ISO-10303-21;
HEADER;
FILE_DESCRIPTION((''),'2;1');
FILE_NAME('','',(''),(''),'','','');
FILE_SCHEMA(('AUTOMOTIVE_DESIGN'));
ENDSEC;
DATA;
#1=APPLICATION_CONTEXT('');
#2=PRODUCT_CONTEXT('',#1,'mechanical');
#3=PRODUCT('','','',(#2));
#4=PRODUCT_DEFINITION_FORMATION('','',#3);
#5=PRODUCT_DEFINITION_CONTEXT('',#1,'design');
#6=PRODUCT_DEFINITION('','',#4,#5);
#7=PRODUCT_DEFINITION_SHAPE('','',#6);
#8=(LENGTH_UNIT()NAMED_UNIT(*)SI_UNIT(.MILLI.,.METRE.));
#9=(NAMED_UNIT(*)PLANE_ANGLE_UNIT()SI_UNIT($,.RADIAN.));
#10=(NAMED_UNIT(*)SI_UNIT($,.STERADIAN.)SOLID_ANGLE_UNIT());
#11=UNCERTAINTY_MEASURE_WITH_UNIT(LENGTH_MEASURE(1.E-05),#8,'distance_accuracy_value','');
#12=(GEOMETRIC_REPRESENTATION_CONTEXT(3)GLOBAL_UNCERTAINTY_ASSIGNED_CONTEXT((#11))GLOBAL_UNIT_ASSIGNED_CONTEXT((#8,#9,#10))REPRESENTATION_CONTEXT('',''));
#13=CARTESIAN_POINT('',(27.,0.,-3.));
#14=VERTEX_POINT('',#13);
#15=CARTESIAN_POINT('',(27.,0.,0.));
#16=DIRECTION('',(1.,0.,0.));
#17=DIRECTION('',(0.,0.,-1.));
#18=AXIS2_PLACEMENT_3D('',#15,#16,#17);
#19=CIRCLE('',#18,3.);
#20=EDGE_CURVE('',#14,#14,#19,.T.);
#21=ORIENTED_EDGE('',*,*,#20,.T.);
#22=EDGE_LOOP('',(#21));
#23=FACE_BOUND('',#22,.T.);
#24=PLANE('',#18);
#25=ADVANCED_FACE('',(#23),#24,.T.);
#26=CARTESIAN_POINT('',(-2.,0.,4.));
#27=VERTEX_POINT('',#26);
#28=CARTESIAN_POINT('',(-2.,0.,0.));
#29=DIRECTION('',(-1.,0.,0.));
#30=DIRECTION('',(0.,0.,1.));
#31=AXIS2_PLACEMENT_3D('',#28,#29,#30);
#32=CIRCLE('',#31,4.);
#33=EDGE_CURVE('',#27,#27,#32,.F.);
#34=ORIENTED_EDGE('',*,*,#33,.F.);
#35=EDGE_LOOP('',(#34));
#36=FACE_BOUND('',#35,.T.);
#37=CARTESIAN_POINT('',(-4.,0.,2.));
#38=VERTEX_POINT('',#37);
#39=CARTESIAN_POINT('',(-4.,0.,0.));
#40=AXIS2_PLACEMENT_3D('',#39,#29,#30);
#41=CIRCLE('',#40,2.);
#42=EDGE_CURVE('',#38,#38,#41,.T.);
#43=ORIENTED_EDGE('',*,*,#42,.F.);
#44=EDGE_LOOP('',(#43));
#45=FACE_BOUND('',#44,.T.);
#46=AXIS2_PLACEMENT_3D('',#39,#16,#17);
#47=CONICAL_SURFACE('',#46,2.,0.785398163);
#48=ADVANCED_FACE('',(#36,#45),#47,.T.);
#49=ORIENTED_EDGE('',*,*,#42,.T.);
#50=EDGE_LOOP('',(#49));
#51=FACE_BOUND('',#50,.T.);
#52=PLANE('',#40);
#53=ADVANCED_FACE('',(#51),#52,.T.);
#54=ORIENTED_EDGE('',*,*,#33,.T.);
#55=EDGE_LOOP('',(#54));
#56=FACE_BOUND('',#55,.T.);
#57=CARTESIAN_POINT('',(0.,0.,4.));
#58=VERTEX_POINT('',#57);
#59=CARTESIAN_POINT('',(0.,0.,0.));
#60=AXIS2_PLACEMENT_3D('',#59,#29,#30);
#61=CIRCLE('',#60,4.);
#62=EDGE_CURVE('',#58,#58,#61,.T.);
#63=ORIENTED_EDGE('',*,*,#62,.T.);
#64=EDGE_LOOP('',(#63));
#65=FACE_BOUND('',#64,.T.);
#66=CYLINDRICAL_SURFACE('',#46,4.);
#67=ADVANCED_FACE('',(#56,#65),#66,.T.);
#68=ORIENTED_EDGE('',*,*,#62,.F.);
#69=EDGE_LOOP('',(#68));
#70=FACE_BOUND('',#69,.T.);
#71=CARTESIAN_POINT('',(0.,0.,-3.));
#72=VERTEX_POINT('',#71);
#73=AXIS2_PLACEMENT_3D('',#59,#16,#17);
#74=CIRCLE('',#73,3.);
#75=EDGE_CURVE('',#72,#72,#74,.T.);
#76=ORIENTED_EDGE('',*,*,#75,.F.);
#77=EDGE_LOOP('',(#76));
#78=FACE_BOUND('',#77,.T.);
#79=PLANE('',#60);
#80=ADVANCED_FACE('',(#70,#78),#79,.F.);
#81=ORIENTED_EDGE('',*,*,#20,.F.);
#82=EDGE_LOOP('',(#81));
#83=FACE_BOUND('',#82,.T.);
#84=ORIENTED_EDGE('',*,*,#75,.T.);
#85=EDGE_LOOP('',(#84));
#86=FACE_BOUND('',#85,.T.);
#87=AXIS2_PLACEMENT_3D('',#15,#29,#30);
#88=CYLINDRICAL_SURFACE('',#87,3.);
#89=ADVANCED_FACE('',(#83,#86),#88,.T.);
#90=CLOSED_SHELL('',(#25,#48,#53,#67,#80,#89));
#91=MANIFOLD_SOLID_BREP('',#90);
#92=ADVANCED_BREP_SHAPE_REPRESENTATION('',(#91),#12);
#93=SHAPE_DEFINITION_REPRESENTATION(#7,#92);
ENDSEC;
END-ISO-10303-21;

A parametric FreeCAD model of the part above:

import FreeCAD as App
import Part
import Sketcher
Q = App.Units.Quantity


def edges_at(feature, points):
    """Names of the edges that pass closest to the given points."""
    edges = feature.Shape.Edges
    near = lambda p: min(range(len(edges)), key=lambda i: edges[i].distToShape(Part.Vertex(*p))[0])
    return sorted({f"Edge{near(p) + 1}" for p in points})

doc = App.newDocument("Part")
params = doc.addObject("Spreadsheet::Sheet", "Params")
for row, (alias, value) in enumerate([
    ("sketch1_diameter", "6 mm"),
    ("pad1_length", "27 mm"),
    ("sketch2_diameter", "8 mm"),
    ("pad2_length", "4 mm"),
    ("chamfer_size", "2 mm"),
], start=1):
    params.set(f"A{row}", alias)
    params.set(f"B{row}", "=" + value)
    params.setAlias(f"B{row}", alias)

body = doc.addObject("PartDesign::Body", "Body")

# Sketch on YZ plane
sketch1 = doc.addObject("Sketcher::SketchObject", "Sketch")
body.addObject(sketch1)
sketch1.AttachmentSupport = (doc.YZ_Plane, [""])
sketch1.MapMode = "FlatFace"
sketch1.addGeometry(Part.Circle(App.Vector(0, 0, 0), App.Vector(0, 0, 1), 3), False)
sketch1.addConstraint([
    Sketcher.Constraint("Coincident", 0, 3, -1, 1),
    Sketcher.Constraint("Diameter", 0, Q("6 mm")),
])
sketch1.setExpression("Constraints[1]", "Params.sketch1_diameter")
pad1 = doc.addObject("PartDesign::Pad", "Pad")
body.addObject(pad1)
pad1.Profile = sketch1
pad1.setExpression("Length", "Params.pad1_length")

# Sketch on YZ plane
sketch2 = doc.addObject("Sketcher::SketchObject", "Sketch001")
body.addObject(sketch2)
sketch2.AttachmentSupport = (doc.YZ_Plane, [""])
sketch2.MapMode = "FlatFace"
sketch2.addGeometry(Part.Circle(App.Vector(0, 0, 0), App.Vector(0, 0, 1), 4), False)
sketch2.addConstraint([
    Sketcher.Constraint("Coincident", 0, 3, -1, 1),
    Sketcher.Constraint("Diameter", 0, Q("8 mm")),
])
sketch2.setExpression("Constraints[1]", "Params.sketch2_diameter")
pad2 = doc.addObject("PartDesign::Pad", "Pad001")
body.addObject(pad2)
pad2.Profile = sketch2
pad2.setExpression("Length", "Params.pad2_length")
pad2.Reversed = True
doc.recompute()

chamfer = doc.addObject("PartDesign::Chamfer", "Chamfer")
body.addObject(chamfer)
chamfer.Base = (pad2, edges_at(pad2, [(-4, 0, -4)]))
chamfer.setExpression("Size", "Params.chamfer_size")

doc.recompute()
